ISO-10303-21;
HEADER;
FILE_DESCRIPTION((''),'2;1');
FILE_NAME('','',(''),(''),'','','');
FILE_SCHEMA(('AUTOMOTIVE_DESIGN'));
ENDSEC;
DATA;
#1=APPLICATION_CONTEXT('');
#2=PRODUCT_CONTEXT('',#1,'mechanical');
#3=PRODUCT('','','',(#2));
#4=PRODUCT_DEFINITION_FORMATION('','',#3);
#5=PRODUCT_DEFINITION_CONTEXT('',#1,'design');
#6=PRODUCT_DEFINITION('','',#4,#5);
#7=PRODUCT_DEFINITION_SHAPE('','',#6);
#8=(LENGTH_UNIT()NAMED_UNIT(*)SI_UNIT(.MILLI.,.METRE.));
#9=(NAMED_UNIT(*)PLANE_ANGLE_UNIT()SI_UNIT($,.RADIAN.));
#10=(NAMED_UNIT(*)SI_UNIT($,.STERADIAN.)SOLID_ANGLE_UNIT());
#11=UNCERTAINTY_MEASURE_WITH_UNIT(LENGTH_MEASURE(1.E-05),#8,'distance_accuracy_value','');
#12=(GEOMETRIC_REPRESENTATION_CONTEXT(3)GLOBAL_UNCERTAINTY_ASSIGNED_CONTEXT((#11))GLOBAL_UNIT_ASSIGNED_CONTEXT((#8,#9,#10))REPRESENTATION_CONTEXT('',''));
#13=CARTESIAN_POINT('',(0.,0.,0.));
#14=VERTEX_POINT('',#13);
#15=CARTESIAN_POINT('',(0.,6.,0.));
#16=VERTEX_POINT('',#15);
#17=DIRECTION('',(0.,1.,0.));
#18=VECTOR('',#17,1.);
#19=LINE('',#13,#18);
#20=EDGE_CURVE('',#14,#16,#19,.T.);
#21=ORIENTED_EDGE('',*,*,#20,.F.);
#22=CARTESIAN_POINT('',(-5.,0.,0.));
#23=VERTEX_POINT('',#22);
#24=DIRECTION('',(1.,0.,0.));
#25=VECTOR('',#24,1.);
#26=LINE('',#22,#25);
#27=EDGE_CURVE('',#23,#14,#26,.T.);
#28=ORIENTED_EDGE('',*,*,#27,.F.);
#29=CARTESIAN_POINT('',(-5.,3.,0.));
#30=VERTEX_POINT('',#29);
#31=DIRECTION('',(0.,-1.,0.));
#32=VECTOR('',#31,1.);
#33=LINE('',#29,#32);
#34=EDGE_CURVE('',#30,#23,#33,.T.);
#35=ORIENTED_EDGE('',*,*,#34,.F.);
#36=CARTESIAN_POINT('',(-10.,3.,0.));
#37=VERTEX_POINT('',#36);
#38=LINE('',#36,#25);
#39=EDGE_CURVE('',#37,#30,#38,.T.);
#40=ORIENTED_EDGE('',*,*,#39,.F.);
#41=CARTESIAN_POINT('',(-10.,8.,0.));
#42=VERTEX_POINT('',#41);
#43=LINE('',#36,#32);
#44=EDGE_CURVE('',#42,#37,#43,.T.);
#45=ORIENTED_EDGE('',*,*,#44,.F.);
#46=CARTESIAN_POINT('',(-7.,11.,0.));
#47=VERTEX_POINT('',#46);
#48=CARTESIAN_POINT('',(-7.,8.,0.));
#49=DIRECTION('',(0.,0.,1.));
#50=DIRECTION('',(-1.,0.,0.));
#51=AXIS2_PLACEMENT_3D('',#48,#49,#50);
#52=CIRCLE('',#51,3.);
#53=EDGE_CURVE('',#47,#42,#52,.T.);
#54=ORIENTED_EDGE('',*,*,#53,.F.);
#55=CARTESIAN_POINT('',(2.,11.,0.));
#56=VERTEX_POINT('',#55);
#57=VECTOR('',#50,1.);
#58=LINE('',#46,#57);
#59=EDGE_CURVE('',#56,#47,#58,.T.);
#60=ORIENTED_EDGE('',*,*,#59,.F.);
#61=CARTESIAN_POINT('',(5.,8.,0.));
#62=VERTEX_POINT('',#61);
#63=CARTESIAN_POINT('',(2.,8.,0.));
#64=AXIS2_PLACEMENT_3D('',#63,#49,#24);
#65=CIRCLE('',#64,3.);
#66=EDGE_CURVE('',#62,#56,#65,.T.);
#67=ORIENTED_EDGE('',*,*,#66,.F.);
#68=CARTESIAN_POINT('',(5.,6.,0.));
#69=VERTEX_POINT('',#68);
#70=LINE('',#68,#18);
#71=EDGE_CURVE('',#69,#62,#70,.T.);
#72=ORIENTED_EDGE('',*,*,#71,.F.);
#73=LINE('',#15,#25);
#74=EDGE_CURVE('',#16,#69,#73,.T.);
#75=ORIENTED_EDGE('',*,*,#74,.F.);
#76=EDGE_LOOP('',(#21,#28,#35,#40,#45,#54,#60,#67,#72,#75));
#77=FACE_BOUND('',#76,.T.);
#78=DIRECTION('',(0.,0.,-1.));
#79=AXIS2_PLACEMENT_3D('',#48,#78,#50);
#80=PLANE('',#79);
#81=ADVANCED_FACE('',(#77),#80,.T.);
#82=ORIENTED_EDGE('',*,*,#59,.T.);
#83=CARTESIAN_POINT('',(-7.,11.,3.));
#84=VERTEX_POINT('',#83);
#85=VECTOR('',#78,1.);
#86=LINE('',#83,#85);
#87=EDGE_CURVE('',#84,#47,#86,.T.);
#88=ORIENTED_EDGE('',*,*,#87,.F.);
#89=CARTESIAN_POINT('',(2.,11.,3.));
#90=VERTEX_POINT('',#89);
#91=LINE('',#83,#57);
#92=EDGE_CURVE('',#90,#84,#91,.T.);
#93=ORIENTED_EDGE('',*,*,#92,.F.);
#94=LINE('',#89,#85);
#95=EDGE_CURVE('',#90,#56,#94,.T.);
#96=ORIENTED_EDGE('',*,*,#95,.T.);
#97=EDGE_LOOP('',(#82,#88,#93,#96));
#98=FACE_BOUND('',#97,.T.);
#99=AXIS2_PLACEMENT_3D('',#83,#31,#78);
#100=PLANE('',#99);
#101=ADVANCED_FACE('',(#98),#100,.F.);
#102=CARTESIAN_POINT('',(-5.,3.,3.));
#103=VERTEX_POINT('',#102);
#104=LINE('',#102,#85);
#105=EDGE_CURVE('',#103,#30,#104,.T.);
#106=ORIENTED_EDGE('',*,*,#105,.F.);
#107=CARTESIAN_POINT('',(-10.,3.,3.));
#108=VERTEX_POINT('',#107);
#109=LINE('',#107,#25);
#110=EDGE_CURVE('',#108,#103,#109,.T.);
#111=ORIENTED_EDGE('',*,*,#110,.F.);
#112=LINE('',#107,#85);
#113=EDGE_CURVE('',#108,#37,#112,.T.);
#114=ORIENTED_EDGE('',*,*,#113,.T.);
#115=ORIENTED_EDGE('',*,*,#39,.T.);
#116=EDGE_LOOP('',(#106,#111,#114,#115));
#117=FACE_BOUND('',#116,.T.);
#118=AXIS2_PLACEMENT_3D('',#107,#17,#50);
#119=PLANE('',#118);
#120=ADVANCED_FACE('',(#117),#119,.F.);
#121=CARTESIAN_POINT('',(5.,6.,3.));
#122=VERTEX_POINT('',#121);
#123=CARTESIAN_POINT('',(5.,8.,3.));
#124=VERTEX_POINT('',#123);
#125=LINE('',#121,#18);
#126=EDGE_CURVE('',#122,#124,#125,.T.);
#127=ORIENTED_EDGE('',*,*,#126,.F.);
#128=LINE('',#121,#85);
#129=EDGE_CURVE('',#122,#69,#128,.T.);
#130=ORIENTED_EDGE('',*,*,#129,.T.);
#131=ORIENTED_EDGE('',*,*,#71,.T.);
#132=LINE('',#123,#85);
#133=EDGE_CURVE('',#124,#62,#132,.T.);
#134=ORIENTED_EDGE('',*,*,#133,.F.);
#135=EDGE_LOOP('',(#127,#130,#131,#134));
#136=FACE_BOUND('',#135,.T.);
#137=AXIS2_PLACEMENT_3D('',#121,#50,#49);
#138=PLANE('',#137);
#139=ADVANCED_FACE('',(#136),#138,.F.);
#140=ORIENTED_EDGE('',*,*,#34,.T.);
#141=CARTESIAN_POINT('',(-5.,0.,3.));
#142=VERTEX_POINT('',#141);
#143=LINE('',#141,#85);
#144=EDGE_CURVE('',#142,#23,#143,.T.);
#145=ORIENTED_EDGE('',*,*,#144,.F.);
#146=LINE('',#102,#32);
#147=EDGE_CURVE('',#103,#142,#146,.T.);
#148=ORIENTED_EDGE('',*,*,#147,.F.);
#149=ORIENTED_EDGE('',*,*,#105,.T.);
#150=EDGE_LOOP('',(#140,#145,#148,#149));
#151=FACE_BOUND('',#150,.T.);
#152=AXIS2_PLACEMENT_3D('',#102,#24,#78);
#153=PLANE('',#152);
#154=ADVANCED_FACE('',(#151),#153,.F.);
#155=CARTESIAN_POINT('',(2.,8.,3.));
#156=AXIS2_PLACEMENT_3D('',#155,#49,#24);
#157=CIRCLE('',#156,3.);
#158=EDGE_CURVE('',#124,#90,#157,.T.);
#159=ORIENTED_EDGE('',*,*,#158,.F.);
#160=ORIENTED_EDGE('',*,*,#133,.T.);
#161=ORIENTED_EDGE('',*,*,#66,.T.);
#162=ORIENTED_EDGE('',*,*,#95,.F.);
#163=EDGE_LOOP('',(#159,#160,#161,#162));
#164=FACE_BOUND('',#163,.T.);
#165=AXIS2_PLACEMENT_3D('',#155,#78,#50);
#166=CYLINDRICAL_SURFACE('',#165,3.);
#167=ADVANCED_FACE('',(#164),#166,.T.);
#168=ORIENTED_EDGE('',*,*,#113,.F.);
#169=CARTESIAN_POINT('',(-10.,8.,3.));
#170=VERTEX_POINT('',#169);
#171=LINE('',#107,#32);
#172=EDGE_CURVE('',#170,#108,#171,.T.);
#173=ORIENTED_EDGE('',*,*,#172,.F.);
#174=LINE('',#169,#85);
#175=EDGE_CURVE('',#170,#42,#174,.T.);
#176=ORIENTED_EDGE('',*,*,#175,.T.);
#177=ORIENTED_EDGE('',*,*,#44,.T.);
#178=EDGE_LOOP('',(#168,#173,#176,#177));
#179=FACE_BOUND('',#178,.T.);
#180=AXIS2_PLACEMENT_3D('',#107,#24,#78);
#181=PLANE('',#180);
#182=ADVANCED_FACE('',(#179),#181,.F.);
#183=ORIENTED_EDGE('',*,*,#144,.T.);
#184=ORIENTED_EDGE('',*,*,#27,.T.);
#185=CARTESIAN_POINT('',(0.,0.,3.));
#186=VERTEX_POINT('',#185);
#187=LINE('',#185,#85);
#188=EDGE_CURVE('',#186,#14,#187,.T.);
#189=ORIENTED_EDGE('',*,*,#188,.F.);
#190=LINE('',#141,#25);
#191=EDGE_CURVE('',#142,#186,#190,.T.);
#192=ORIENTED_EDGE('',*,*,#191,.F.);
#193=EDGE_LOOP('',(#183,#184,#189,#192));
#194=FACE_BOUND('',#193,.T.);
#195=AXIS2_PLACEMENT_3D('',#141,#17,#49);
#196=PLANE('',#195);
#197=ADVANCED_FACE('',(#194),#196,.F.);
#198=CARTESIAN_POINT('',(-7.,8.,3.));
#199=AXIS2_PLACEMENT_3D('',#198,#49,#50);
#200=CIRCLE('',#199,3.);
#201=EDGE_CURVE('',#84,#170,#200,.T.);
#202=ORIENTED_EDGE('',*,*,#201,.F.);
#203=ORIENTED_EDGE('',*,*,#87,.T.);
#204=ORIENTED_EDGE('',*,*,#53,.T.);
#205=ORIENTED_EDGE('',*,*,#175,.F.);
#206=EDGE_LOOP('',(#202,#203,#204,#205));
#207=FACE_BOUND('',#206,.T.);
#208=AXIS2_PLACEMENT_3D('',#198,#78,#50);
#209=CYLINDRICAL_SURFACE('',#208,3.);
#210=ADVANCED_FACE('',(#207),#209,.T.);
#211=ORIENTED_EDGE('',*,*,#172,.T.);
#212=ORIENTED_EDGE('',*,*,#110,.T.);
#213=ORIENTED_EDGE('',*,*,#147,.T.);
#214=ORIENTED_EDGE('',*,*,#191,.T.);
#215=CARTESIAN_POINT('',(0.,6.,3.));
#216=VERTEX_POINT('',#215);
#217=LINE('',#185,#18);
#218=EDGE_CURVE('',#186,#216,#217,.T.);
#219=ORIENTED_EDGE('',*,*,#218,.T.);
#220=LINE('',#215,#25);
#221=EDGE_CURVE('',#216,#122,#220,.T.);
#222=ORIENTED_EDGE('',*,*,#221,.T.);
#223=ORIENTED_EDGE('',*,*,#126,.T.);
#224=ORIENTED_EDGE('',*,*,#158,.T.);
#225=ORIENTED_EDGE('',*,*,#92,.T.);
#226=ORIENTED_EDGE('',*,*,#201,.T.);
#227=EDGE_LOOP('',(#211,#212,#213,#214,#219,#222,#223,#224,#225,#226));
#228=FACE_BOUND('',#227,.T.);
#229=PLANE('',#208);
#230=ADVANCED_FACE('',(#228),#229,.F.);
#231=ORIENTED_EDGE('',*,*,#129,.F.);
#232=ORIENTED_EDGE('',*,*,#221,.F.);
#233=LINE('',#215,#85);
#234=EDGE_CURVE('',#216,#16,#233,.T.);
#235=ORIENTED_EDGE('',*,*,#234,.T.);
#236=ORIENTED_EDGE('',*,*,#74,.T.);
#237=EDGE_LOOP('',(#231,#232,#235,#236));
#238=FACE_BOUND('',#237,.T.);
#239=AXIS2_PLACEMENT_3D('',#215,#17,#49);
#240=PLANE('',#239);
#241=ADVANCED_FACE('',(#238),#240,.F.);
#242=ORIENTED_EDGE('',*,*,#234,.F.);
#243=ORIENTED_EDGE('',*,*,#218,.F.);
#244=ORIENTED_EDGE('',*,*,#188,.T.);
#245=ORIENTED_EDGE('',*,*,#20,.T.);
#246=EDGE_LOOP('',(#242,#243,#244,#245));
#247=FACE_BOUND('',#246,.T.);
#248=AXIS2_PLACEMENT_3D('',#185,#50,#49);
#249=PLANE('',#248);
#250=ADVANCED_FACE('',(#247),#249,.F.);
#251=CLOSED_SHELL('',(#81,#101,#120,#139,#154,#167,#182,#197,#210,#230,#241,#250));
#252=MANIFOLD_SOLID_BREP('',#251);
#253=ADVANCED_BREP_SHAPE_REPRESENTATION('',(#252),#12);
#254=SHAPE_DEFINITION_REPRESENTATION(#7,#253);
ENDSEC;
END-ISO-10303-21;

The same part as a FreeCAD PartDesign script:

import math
import FreeCAD as App
import Part
import Sketcher
from FreeCAD import Vector
Q = App.Units.Quantity

doc = App.newDocument("Part")
body = doc.addObject("PartDesign::Body", "Body")

# Sketch on XY plane
sketch1 = doc.addObject("Sketcher::SketchObject", "Sketch")
body.addObject(sketch1)
sketch1.AttachmentSupport = (doc.XY_Plane, [""])
sketch1.MapMode = "FlatFace"
sketch1.addGeometry([
    Part.LineSegment(Vector(-10, 3, 0), Vector(-5, 3, 0)),  # 0
    Part.LineSegment(Vector(-5, 3, 0), Vector(-5, 0, 0)),  # 1
    Part.LineSegment(Vector(-5, 0, 0), Vector(0, 0, 0)),  # 2
    Part.LineSegment(Vector(0, 0, 0), Vector(0, 6, 0)),  # 3
    Part.LineSegment(Vector(0, 6, 0), Vector(5, 6, 0)),  # 4
    Part.LineSegment(Vector(5, 6, 0), Vector(5, 8, 0)),  # 5
    Part.ArcOfCircle(Part.Circle(Vector(2, 8, 0), Vector(0, 0, 1), 3), math.radians(0), math.radians(90)),  # 6
    Part.LineSegment(Vector(2, 11, 0), Vector(-7, 11, 0)),  # 7
    Part.ArcOfCircle(Part.Circle(Vector(-7, 8, 0), Vector(0, 0, 1), 3), math.radians(90), math.radians(180)),  # 8
    Part.LineSegment(Vector(-10, 8, 0), Vector(-10, 3, 0)),  # 9
], False)
sketch1.addConstraint([
    Sketcher.Constraint("Coincident", 0, 2, 1, 1),
    Sketcher.Constraint("Coincident", 1, 2, 2, 1),
    Sketcher.Constraint("Coincident", 2, 2, 3, 1),
    Sketcher.Constraint("Coincident", 3, 2, 4, 1),
    Sketcher.Constraint("Coincident", 4, 2, 5, 1),
    Sketcher.Constraint("Tangent", 5, 2, 6, 1),
    Sketcher.Constraint("Tangent", 6, 2, 7, 1),
    Sketcher.Constraint("Tangent", 7, 2, 8, 1),
    Sketcher.Constraint("Tangent", 8, 2, 9, 1),
    Sketcher.Constraint("Coincident", 9, 2, 0, 1),
    Sketcher.Constraint("Horizontal", 0),
    Sketcher.Constraint("Vertical", 1),
    Sketcher.Constraint("Horizontal", 2),
    Sketcher.Constraint("Vertical", 3),
    Sketcher.Constraint("Horizontal", 4),
    Sketcher.Constraint("Vertical", 5),
    Sketcher.Constraint("Horizontal", 7),
    Sketcher.Constraint("Vertical", 9),
    Sketcher.Constraint("Coincident", 2, 2, -1, 1),
    Sketcher.Constraint("Equal", 6, 8),
    Sketcher.Constraint("Equal", 0, 2),
    Sketcher.Constraint("Equal", 2, 4),
    Sketcher.Constraint("Equal", 4, 9),
    Sketcher.Constraint("Radius", 6, Q("3 mm")),
    Sketcher.Constraint("DistanceX", 0, 1, 0, 2, Q("5 mm")),
    Sketcher.Constraint("DistanceY", 1, 2, 1, 1, Q("3 mm")),
    Sketcher.Constraint("DistanceY", 3, 1, 3, 2, Q("6 mm")),
])
pad1 = doc.addObject("PartDesign::Pad", "Pad")
body.addObject(pad1)
pad1.Profile = sketch1
pad1.Length = 3

doc.recompute()
